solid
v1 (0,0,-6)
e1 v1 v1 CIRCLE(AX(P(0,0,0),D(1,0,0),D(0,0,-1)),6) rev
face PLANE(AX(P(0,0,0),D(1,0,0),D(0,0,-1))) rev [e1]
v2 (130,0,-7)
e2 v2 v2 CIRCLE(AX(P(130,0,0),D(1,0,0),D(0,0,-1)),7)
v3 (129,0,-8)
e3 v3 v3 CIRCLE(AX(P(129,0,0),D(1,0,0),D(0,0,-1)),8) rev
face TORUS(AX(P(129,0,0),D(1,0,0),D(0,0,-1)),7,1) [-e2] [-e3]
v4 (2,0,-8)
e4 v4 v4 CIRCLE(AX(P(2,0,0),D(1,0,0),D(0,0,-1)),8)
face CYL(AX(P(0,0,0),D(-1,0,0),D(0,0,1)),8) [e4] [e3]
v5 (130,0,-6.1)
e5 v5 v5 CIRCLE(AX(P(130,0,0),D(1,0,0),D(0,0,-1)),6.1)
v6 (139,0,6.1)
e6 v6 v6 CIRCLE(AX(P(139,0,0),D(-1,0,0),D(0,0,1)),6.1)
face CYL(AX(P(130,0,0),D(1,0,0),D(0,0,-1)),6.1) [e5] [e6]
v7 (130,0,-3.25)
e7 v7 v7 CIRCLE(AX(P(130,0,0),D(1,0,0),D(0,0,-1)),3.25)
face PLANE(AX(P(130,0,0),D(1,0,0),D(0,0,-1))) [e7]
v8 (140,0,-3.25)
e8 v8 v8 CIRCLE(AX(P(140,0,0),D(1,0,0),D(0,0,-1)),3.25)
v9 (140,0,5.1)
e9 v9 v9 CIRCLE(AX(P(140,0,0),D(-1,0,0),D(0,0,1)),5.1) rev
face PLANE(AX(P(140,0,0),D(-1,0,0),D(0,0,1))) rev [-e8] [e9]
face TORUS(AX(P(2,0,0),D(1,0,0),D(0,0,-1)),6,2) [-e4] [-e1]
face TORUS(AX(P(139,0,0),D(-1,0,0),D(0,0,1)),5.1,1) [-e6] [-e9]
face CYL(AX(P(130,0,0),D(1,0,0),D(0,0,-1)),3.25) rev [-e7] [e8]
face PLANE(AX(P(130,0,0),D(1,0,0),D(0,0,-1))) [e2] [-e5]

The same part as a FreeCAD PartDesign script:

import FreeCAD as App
import Part
import Sketcher

V = App.Vector
Q = App.Units.Quantity


def edges_at(feature, points):
    """Names of the edges that pass closest to the given points."""
    edges = feature.Shape.Edges
    near = lambda p: min(range(len(edges)), key=lambda i: edges[i].distToShape(Part.Vertex(*p))[0])
    return sorted({f"Edge{near(p) + 1}" for p in points})


def add_polygon(sketch, points):
    """Adds a closed chain of lines whose ends are joined by coincident constraints."""
    first, n = sketch.GeometryCount, len(points)
    for a, b in zip(points, points[1:] + points[:1]):
        sketch.addGeometry(Part.LineSegment(App.Vector(*a, 0), App.Vector(*b, 0)), False)
    for i in range(n):
        sketch.addConstraint(Sketcher.Constraint("Coincident", first + i, 2, first + (i + 1) % n, 1))

doc = App.newDocument("Part")
params = doc.addObject("Spreadsheet::Sheet", "Params")
for row, (alias, value) in enumerate([
    ("sketch1_width", "140 mm"),
    ("sketch1_height", "8 mm"),
    ("revolution_angle", "360 deg"),
    ("sketch2_diameter", "16 mm"),
    ("sketch2_diameter2", "12.2 mm"),
    ("pocket1_length", "10 mm"),
    ("sketch3_diameter", "6.5 mm"),
    ("pocket2_length", "10 mm"),
    ("fillet_radius", "2 mm"),
    ("fillet2_radius", "1 mm"),
], start=1):
    params.set(f"A{row}", alias)
    params.set(f"B{row}", "=" + value)
    params.setAlias(f"B{row}", alias)

body = doc.addObject("PartDesign::Body", "Body")

# Sketch on XY plane
sketch1 = doc.addObject("Sketcher::SketchObject", "Sketch")
body.addObject(sketch1)
sketch1.AttachmentSupport = (doc.XY_Plane, [""])
sketch1.MapMode = "FlatFace"
add_polygon(sketch1, [(0, 8), (0, 0), (140, 0), (140, 8)])  # lines 0-3
sketch1.addConstraint([
    Sketcher.Constraint("Vertical", 0),
    Sketcher.Constraint("Horizontal", 1),
    Sketcher.Constraint("Vertical", 2),
    Sketcher.Constraint("Horizontal", 3),
    Sketcher.Constraint("Coincident", 0, 2, -1, 1),
    Sketcher.Constraint("DistanceX", 1, 1, 1, 2, Q("140 mm")),
    Sketcher.Constraint("DistanceY", 0, 2, 0, 1, Q("8 mm")),
])
sketch1.setExpression("Constraints[9]", "Params.sketch1_width")
sketch1.setExpression("Constraints[10]", "Params.sketch1_height")
revolution = doc.addObject("PartDesign::Revolution", "Revolution")
body.addObject(revolution)
revolution.Profile = sketch1
revolution.ReferenceAxis = (sketch1, ["H_Axis"])
revolution.setExpression("Angle", "Params.revolution_angle")

# Sketch on YZ plane
sketch2 = doc.addObject("Sketcher::SketchObject", "Sketch001")
body.addObject(sketch2)
sketch2.AttachmentSupport = (doc.YZ_Plane, [""])
sketch2.MapMode = "FlatFace"
sketch2.AttachmentOffset = App.Placement(V(0, 0, 130), App.Rotation())
sketch2.addGeometry([
    Part.Circle(V(0, 0, 0), V(0, 0, 1), 8),
    Part.Circle(V(0, 0, 0), V(0, 0, 1), 6),
], False)
sketch2.addConstraint([
    Sketcher.Constraint("Coincident", 0, 3, -1, 1),
    Sketcher.Constraint("Coincident", 1, 3, -1, 1),
    Sketcher.Constraint("Diameter", 0, Q("16 mm")),
    Sketcher.Constraint("Diameter", 1, Q("12.2 mm")),
])
sketch2.setExpression("Constraints[2]", "Params.sketch2_diameter")
sketch2.setExpression("Constraints[3]", "Params.sketch2_diameter2")
pocket1 = doc.addObject("PartDesign::Pocket", "Pocket")
body.addObject(pocket1)
pocket1.Profile = sketch2
pocket1.setExpression("Length", "Params.pocket1_length")
pocket1.Reversed = True

# Sketch on YZ plane
sketch3 = doc.addObject("Sketcher::SketchObject", "Sketch002")
body.addObject(sketch3)
sketch3.AttachmentSupport = (doc.YZ_Plane, [""])
sketch3.MapMode = "FlatFace"
sketch3.AttachmentOffset = App.Placement(V(0, 0, 140), App.Rotation())
sketch3.addGeometry(Part.Circle(V(0, 0, 0), V(0, 0, 1), 3.2), False)
sketch3.addConstraint([
    Sketcher.Constraint("Coincident", 0, 3, -1, 1),
    Sketcher.Constraint("Diameter", 0, Q("6.5 mm")),
])
sketch3.setExpression("Constraints[1]", "Params.sketch3_diameter")
pocket2 = doc.addObject("PartDesign::Pocket", "Pocket001")
body.addObject(pocket2)
pocket2.Profile = sketch3
pocket2.setExpression("Length", "Params.pocket2_length")
doc.recompute()

fillet = doc.addObject("PartDesign::Fillet", "Fillet")
body.addObject(fillet)
fillet.Base = (pocket2, edges_at(pocket2, [(0, 0, -8)]))
fillet.setExpression("Radius", "Params.fillet_radius")
doc.recompute()

fillet2 = doc.addObject("PartDesign::Fillet", "Fillet001")
body.addObject(fillet2)
fillet2.Base = (fillet, edges_at(fillet, [(130, 0, -8), (140, 0, 6.1)]))
fillet2.setExpression("Radius", "Params.fillet2_radius")

doc.recompute()
